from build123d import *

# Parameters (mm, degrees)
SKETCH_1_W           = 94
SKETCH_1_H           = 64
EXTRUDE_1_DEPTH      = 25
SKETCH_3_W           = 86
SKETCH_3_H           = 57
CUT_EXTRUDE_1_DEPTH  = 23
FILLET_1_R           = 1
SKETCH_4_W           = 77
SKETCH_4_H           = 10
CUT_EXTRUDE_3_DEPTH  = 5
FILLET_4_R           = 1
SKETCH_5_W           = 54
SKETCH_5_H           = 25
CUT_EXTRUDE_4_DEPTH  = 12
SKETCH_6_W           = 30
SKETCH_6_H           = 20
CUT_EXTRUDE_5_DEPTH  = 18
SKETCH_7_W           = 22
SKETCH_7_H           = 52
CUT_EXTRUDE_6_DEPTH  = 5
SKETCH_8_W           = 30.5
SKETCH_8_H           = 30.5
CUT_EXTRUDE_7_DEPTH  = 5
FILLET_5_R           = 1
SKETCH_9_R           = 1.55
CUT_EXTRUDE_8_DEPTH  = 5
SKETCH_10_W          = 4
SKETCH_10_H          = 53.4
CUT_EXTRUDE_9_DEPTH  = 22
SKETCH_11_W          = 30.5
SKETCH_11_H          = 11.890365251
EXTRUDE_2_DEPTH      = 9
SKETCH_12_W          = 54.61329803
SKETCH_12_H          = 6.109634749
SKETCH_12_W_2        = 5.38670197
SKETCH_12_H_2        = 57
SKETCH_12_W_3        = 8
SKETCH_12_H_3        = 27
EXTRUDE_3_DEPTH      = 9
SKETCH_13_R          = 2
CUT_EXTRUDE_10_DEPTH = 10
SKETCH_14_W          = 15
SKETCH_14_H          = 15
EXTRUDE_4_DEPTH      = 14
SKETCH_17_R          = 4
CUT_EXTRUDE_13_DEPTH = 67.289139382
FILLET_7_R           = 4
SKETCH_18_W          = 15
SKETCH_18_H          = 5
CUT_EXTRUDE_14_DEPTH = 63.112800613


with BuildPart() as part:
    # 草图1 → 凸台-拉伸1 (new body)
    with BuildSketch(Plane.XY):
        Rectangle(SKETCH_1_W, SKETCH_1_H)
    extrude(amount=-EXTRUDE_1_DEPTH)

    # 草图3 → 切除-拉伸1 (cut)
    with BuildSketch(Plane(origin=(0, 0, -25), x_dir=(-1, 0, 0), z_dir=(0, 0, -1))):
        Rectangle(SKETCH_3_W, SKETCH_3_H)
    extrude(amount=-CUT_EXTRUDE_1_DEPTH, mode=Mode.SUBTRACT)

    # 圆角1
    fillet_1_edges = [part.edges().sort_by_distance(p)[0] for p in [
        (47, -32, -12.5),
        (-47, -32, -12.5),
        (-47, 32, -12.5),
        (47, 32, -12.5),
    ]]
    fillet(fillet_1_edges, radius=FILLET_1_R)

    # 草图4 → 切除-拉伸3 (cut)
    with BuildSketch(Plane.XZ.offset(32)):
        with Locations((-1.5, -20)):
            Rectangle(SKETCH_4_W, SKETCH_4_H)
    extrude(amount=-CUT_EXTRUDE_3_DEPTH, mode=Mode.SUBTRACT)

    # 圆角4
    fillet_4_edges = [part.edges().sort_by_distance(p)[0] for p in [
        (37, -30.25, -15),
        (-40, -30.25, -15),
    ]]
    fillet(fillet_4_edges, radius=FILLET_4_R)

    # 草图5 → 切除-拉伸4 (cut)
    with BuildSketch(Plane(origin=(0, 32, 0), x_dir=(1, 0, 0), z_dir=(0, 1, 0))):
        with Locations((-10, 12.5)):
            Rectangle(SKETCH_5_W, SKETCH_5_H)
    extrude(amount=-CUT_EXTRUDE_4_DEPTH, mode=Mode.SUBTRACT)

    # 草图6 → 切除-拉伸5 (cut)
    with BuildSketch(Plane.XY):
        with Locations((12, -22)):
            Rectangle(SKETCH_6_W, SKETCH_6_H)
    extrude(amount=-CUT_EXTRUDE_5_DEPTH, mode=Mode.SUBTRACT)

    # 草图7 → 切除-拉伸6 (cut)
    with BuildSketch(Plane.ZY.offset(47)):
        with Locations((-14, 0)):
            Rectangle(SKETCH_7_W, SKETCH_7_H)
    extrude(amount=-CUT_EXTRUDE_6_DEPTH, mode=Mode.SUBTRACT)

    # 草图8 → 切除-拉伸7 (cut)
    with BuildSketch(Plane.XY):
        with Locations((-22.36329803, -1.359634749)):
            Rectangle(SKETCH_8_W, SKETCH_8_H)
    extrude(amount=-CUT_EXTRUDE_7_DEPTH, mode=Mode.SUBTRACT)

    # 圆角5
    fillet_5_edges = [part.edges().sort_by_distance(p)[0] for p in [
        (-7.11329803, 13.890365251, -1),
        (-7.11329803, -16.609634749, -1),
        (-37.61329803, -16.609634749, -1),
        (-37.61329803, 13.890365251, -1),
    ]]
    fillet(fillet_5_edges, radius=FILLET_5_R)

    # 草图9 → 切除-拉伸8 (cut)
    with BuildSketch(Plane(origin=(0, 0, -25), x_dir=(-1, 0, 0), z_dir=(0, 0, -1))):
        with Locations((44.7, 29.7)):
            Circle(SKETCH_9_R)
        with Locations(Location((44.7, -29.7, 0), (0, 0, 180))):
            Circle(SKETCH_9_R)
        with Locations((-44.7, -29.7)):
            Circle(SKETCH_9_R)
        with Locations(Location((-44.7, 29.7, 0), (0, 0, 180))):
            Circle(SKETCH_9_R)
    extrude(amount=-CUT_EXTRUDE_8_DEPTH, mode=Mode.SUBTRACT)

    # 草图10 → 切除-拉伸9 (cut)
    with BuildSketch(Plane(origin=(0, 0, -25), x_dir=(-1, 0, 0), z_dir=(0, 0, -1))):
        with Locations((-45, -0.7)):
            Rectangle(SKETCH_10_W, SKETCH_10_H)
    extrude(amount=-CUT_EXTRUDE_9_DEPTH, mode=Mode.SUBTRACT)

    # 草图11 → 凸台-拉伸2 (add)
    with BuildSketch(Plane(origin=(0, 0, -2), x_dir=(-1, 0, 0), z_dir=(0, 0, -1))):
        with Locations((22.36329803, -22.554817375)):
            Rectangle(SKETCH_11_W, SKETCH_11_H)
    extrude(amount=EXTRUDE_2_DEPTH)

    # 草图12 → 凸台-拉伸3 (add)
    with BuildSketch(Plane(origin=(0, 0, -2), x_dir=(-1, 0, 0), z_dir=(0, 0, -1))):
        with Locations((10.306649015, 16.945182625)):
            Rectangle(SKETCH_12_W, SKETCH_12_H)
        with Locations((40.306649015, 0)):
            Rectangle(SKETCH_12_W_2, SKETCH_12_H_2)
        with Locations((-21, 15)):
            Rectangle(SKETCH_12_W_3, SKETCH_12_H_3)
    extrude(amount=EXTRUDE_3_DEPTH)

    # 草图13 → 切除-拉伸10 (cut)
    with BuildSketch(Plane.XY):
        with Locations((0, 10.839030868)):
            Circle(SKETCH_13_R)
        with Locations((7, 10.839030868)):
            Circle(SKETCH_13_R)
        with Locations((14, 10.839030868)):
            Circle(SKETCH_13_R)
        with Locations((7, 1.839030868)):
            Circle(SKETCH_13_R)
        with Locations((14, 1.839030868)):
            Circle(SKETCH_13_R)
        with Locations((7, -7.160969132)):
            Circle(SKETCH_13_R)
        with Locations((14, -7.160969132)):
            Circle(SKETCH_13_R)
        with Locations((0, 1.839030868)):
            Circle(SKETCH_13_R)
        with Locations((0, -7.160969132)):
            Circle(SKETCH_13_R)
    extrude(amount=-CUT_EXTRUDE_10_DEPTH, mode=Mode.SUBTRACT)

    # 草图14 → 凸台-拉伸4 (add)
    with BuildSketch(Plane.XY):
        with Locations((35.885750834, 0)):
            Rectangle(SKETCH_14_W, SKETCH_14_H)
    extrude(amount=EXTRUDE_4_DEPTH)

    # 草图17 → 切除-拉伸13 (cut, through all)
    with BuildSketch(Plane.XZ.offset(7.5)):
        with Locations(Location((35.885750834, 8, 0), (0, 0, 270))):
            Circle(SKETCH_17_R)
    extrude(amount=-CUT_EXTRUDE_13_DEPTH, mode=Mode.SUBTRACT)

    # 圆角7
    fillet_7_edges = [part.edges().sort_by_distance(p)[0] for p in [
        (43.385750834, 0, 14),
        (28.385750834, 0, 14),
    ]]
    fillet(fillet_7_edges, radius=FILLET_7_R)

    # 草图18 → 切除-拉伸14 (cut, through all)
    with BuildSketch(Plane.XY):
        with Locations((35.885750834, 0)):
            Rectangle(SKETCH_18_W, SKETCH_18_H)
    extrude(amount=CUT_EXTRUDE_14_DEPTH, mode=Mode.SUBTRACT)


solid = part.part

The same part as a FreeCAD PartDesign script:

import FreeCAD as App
import Part
import Sketcher
Q = App.Units.Quantity


def edges_at(feature, points):
    """Names of the edges that pass closest to the given points."""
    edges = feature.Shape.Edges
    near = lambda p: min(range(len(edges)), key=lambda i: edges[i].distToShape(Part.Vertex(*p))[0])
    return sorted({f"Edge{near(p) + 1}" for p in points})


def add_polygon(sketch, points):
    """Adds a closed chain of lines whose ends are joined by coincident constraints."""
    first, n = sketch.GeometryCount, len(points)
    for a, b in zip(points, points[1:] + points[:1]):
        sketch.addGeometry(Part.LineSegment(App.Vector(*a, 0), App.Vector(*b, 0)), False)
    for i in range(n):
        sketch.addConstraint(Sketcher.Constraint("Coincident", first + i, 2, first + (i + 1) % n, 1))

doc = App.newDocument("Part")
params = doc.addObject("Spreadsheet::Sheet", "Params")
for row, (alias, value) in enumerate([
    ("sketch1_width", "94 mm"),
    ("sketch1_height", "64 mm"),
    ("pad1_length", "25 mm"),
    ("sketch2_width", "86 mm"),
    ("sketch2_height", "57 mm"),
    ("pocket1_length", "23 mm"),
    ("fillet_radius", "1 mm"),
    ("sketch3_width", "77 mm"),
    ("sketch3_height", "10 mm"),
    ("pocket2_length", "5 mm"),
    ("fillet2_radius", "1 mm"),
    ("sketch4_width", "54 mm"),
    ("sketch4_height", "25 mm"),
    ("pocket3_length", "12 mm"),
    ("sketch5_width", "30 mm"),
    ("sketch5_height", "20 mm"),
    ("pocket4_length", "18 mm"),
    ("sketch6_width", "52 mm"),
    ("sketch6_height", "22 mm"),
    ("pocket5_length", "5 mm"),
    ("sketch7_width", "30.5 mm"),
    ("pocket6_length", "5 mm"),
    ("fillet3_radius", "1 mm"),
    ("sketch8_diameter", "3.1 mm"),
    ("pocket7_length", "5 mm"),
    ("sketch9_width", "4 mm"),
    ("sketch9_height", "53.4 mm"),
    ("pocket8_length", "22 mm"),
    ("sketch10_width", "30.5 mm"),
    ("pad2_length", "9 mm"),
    ("sketch11_width", "8 mm"),
    ("sketch11_height", "57 mm"),
    ("sketch11_height2", "27 mm"),
    ("sketch11_height3", "8.5 mm"),
    ("pad3_length", "9 mm"),
    ("sketch12_diameter", "4 mm"),
    ("pocket9_length", "10 mm"),
    ("sketch13_width", "15 mm"),
    ("pad4_length", "14 mm"),
    ("sketch14_diameter", "8 mm"),
    ("fillet4_radius", "4 mm"),
    ("sketch15_width", "15 mm"),
    ("sketch15_height", "5 mm"),
], start=1):
    params.set(f"A{row}", alias)
    params.set(f"B{row}", "=" + value)
    params.setAlias(f"B{row}", alias)

body = doc.addObject("PartDesign::Body", "Body")

# Sketch on XY plane
sketch1 = doc.addObject("Sketcher::SketchObject", "Sketch")
body.addObject(sketch1)
sketch1.AttachmentSupport = (doc.XY_Plane, [""])
sketch1.MapMode = "FlatFace"
add_polygon(sketch1, [(-47, 32), (-47, -32), (47, -32), (47, 32)])  # lines 0-3
sketch1.addConstraint(Sketcher.Constraint("Vertical", 0))
sketch1.addConstraint(Sketcher.Constraint("Horizontal", 1))
sketch1.addConstraint(Sketcher.Constraint("Vertical", 2))
sketch1.addConstraint(Sketcher.Constraint("Horizontal", 3))
sketch1.addConstraint(Sketcher.Constraint("Symmetric", 0, 2, 2, 2, -1, 1))
sketch1.addConstraint(Sketcher.Constraint("DistanceX", 1, 1, 1, 2, Q("94 mm")))
sketch1.addConstraint(Sketcher.Constraint("DistanceY", 0, 2, 0, 1, Q("64 mm")))
sketch1.setExpression("Constraints[9]", "Params.sketch1_width")
sketch1.setExpression("Constraints[10]", "Params.sketch1_height")
pad1 = doc.addObject("PartDesign::Pad", "Pad")
body.addObject(pad1)
pad1.Profile = sketch1
pad1.setExpression("Length", "Params.pad1_length")
pad1.Reversed = True

# Sketch on XY plane
sketch2 = doc.addObject("Sketcher::SketchObject", "Sketch001")
body.addObject(sketch2)
sketch2.AttachmentSupport = (doc.XY_Plane, [""])
sketch2.MapMode = "FlatFace"
sketch2.AttachmentOffset = App.Placement(App.Vector(0, 0, -25), App.Rotation())
add_polygon(sketch2, [(43, 28), (43, -28), (-43, -28), (-43, 28)])  # lines 0-3
sketch2.addConstraint(Sketcher.Constraint("Vertical", 0))
sketch2.addConstraint(Sketcher.Constraint("Horizontal", 1))
sketch2.addConstraint(Sketcher.Constraint("Vertical", 2))
sketch2.addConstraint(Sketcher.Constraint("Horizontal", 3))
sketch2.addConstraint(Sketcher.Constraint("Symmetric", 0, 2, 2, 2, -1, 1))
sketch2.addConstraint(Sketcher.Constraint("DistanceX", 1, 2, 1, 1, Q("86 mm")))
sketch2.addConstraint(Sketcher.Constraint("DistanceY", 0, 2, 0, 1, Q("57 mm")))
sketch2.setExpression("Constraints[9]", "Params.sketch2_width")
sketch2.setExpression("Constraints[10]", "Params.sketch2_height")
pocket1 = doc.addObject("PartDesign::Pocket", "Pocket")
body.addObject(pocket1)
pocket1.Profile = sketch2
pocket1.setExpression("Length", "Params.pocket1_length")
pocket1.Reversed = True
doc.recompute()

fillet = doc.addObject("PartDesign::Fillet", "Fillet")
body.addObject(fillet)
fillet.Base = (pocket1, edges_at(pocket1, [
    (47, -32, -12.5),
    (-47, -32, -12.5),
    (-47, 32, -12.5),
    (47, 32, -12.5),
]))
fillet.setExpression("Radius", "Params.fillet_radius")

# Sketch on XZ plane
sketch3 = doc.addObject("Sketcher::SketchObject", "Sketch002")
body.addObject(sketch3)
sketch3.AttachmentSupport = (doc.XZ_Plane, [""])
sketch3.MapMode = "FlatFace"
sketch3.AttachmentOffset = App.Placement(App.Vector(0, 0, 32), App.Rotation())
add_polygon(sketch3, [(-40, -15), (-40, -25), (37, -25), (37, -15)])  # lines 0-3
sketch3.addConstraint(Sketcher.Constraint("Vertical", 0))
sketch3.addConstraint(Sketcher.Constraint("Horizontal", 1))
sketch3.addConstraint(Sketcher.Constraint("Vertical", 2))
sketch3.addConstraint(Sketcher.Constraint("Horizontal", 3))
sketch3.addConstraint(Sketcher.Constraint("DistanceX", 1, 1, 1, 2, Q("77 mm")))
sketch3.addConstraint(Sketcher.Constraint("DistanceY", 0, 2, 0, 1, Q("10 mm")))
sketch3.addConstraint(Sketcher.Constraint("DistanceX", 0, 2, -1, 1, Q("40 mm")))
sketch3.addConstraint(Sketcher.Constraint("DistanceY", 0, 2, -1, 1, Q("25 mm")))
sketch3.setExpression("Constraints[8]", "Params.sketch3_width")
sketch3.setExpression("Constraints[9]", "Params.sketch3_height")
pocket2 = doc.addObject("PartDesign::Pocket", "Pocket001")
body.addObject(pocket2)
pocket2.Profile = sketch3
pocket2.setExpression("Length", "Params.pocket2_length")
doc.recompute()

fillet2 = doc.addObject("PartDesign::Fillet", "Fillet001")
body.addObject(fillet2)
fillet2.Base = (pocket2, edges_at(pocket2, [(37, -30.25, -15), (-40, -30.25, -15)]))
fillet2.setExpression("Radius", "Params.fillet2_radius")

# Sketch on XZ plane
sketch4 = doc.addObject("Sketcher::SketchObject", "Sketch003")
body.addObject(sketch4)
sketch4.AttachmentSupport = (doc.XZ_Plane, [""])
sketch4.MapMode = "FlatFace"
sketch4.AttachmentOffset = App.Placement(App.Vector(0, 0, -32), App.Rotation())
add_polygon(sketch4, [(-37, -25), (-37, 0), (17, 0), (17, -25)])  # lines 0-3
sketch4.addConstraint(Sketcher.Constraint("Vertical", 0))
sketch4.addConstraint(Sketcher.Constraint("Horizontal", 1))
sketch4.addConstraint(Sketcher.Constraint("Vertical", 2))
sketch4.addConstraint(Sketcher.Constraint("Horizontal", 3))
sketch4.addConstraint(Sketcher.Constraint("PointOnObject", 0, 2, -1))
sketch4.addConstraint(Sketcher.Constraint("DistanceX", 1, 1, 1, 2, Q("54 mm")))
sketch4.addConstraint(Sketcher.Constraint("DistanceY", 0, 1, 0, 2, Q("25 mm")))
sketch4.addConstraint(Sketcher.Constraint("DistanceX", 0, 2, -1, 1, Q("37 mm")))
sketch4.setExpression("Constraints[9]", "Params.sketch4_width")
sketch4.setExpression("Constraints[10]", "Params.sketch4_height")
pocket3 = doc.addObject("PartDesign::Pocket", "Pocket002")
body.addObject(pocket3)
pocket3.Profile = sketch4
pocket3.setExpression("Length", "Params.pocket3_length")
pocket3.Reversed = True

# Sketch on XY plane
sketch5 = doc.addObject("Sketcher::SketchObject", "Sketch004")
body.addObject(sketch5)
sketch5.AttachmentSupport = (doc.XY_Plane, [""])
sketch5.MapMode = "FlatFace"
add_polygon(sketch5, [(-3, -12), (-3, -32), (27, -32), (27, -12)])  # lines 0-3
sketch5.addConstraint(Sketcher.Constraint("Vertical", 0))
sketch5.addConstraint(Sketcher.Constraint("Horizontal", 1))
sketch5.addConstraint(Sketcher.Constraint("Vertical", 2))
sketch5.addConstraint(Sketcher.Constraint("Horizontal", 3))
sketch5.addConstraint(Sketcher.Constraint("DistanceX", 1, 1, 1, 2, Q("30 mm")))
sketch5.addConstraint(Sketcher.Constraint("DistanceY", 0, 2, 0, 1, Q("20 mm")))
sketch5.addConstraint(Sketcher.Constraint("DistanceX", 0, 2, -1, 1, Q("3 mm")))
sketch5.addConstraint(Sketcher.Constraint("DistanceY", 0, 2, -1, 1, Q("32 mm")))
sketch5.setExpression("Constraints[8]", "Params.sketch5_width")
sketch5.setExpression("Constraints[9]", "Params.sketch5_height")
pocket4 = doc.addObject("PartDesign::Pocket", "Pocket003")
body.addObject(pocket4)
pocket4.Profile = sketch5
pocket4.setExpression("Length", "Params.pocket4_length")

# Sketch on YZ plane
sketch6 = doc.addObject("Sketcher::SketchObject", "Sketch005")
body.addObject(sketch6)
sketch6.AttachmentSupport = (doc.YZ_Plane, [""])
sketch6.MapMode = "FlatFace"
sketch6.AttachmentOffset = App.Placement(App.Vector(0, 0, -47), App.Rotation())
add_polygon(sketch6, [(26, -25), (-26, -25), (-26, -3), (26, -3)])  # lines 0-3
sketch6.addConstraint(Sketcher.Constraint("Horizontal", 0))
sketch6.addConstraint(Sketcher.Constraint("Vertical", 1))
sketch6.addConstraint(Sketcher.Constraint("Horizontal", 2))
sketch6.addConstraint(Sketcher.Constraint("Vertical", 3))
sketch6.addConstraint(Sketcher.Constraint("DistanceX", 0, 2, 0, 1, Q("52 mm")))
sketch6.addConstraint(Sketcher.Constraint("DistanceY", 1, 1, 1, 2, Q("22 mm")))
sketch6.addConstraint(Sketcher.Constraint("DistanceX", 0, 2, -1, 1, Q("26 mm")))
sketch6.addConstraint(Sketcher.Constraint("DistanceY", 0, 2, -1, 1, Q("25 mm")))
sketch6.setExpression("Constraints[8]", "Params.sketch6_width")
sketch6.setExpression("Constraints[9]", "Params.sketch6_height")
pocket5 = doc.addObject("PartDesign::Pocket", "Pocket004")
body.addObject(pocket5)
pocket5.Profile = sketch6
pocket5.setExpression("Length", "Params.pocket5_length")
pocket5.Reversed = True

# Sketch on XY plane
sketch7 = doc.addObject("Sketcher::SketchObject", "Sketch006")
body.addObject(sketch7)
sketch7.AttachmentSupport = (doc.XY_Plane, [""])
sketch7.MapMode = "FlatFace"
add_polygon(sketch7, [(-38, 14), (-38, -17), (-7, -17), (-7, 14)])  # lines 0-3
sketch7.addConstraint(Sketcher.Constraint("Vertical", 0))
sketch7.addConstraint(Sketcher.Constraint("Horizontal", 1))
sketch7.addConstraint(Sketcher.Constraint("Vertical", 2))
sketch7.addConstraint(Sketcher.Constraint("Horizontal", 3))
sketch7.addConstraint(Sketcher.Constraint("Equal", 3, 0))
sketch7.addConstraint(Sketcher.Constraint("DistanceX", 1, 1, 1, 2, Q("30.5 mm")))
sketch7.addConstraint(Sketcher.Constraint("DistanceX", 0, 2, -1, 1, Q("37.613298 mm")))
sketch7.addConstraint(Sketcher.Constraint("DistanceY", 0, 2, -1, 1, Q("16.609635 mm")))
sketch7.setExpression("Constraints[9]", "Params.sketch7_width")
pocket6 = doc.addObject("PartDesign::Pocket", "Pocket005")
body.addObject(pocket6)
pocket6.Profile = sketch7
pocket6.setExpression("Length", "Params.pocket6_length")
doc.recompute()

fillet3 = doc.addObject("PartDesign::Fillet", "Fillet002")
body.addObject(fillet3)
fillet3.Base = (pocket6, edges_at(pocket6, [
    (-7.113, 13.89, -1),
    (-7.113, -16.61, -1),
    (-37.613, -16.61, -1),
    (-37.613, 13.89, -1),
]))
fillet3.setExpression("Radius", "Params.fillet3_radius")

# Sketch on XY plane
sketch8 = doc.addObject("Sketcher::SketchObject", "Sketch007")
body.addObject(sketch8)
sketch8.AttachmentSupport = (doc.XY_Plane, [""])
sketch8.MapMode = "FlatFace"
sketch8.AttachmentOffset = App.Placement(App.Vector(0, 0, -25), App.Rotation())
sketch8.addGeometry(Part.Circle(App.Vector(-44.7, 29.7, 0), App.Vector(0, 0, 1), 1.6), False)
sketch8.addGeometry(Part.Circle(App.Vector(-44.7, -29.7, 0), App.Vector(0, 0, 1), 1.6), False)
sketch8.addGeometry(Part.Circle(App.Vector(44.7, -29.7, 0), App.Vector(0, 0, 1), 1.6), False)
sketch8.addGeometry(Part.Circle(App.Vector(44.7, 29.7, 0), App.Vector(0, 0, 1), 1.6), False)
sketch8.addConstraint(Sketcher.Constraint("Equal", 0, 1))
sketch8.addConstraint(Sketcher.Constraint("Equal", 1, 2))
sketch8.addConstraint(Sketcher.Constraint("Equal", 2, 3))
sketch8.addConstraint(Sketcher.Constraint("Symmetric", 0, 3, 2, 3, -1, 1))
sketch8.addConstraint(Sketcher.Constraint("Symmetric", 1, 3, 3, 3, -1, 1))
sketch8.addConstraint(Sketcher.Constraint("Symmetric", 1, 3, 2, 3, -2))
sketch8.addConstraint(Sketcher.Constraint("Diameter", 0, Q("3.1 mm")))
sketch8.addConstraint(Sketcher.Constraint("DistanceX", 0, 3, -1, 1, Q("44.7 mm")))
sketch8.addConstraint(Sketcher.Constraint("DistanceY", -1, 1, 0, 3, Q("29.7 mm")))
sketch8.setExpression("Constraints[6]", "Params.sketch8_diameter")
pocket7 = doc.addObject("PartDesign::Pocket", "Pocket006")
body.addObject(pocket7)
pocket7.Profile = sketch8
pocket7.setExpression("Length", "Params.pocket7_length")
pocket7.Reversed = True

# Sketch on XY plane
sketch9 = doc.addObject("Sketcher::SketchObject", "Sketch008")
body.addObject(sketch9)
sketch9.AttachmentSupport = (doc.XY_Plane, [""])
sketch9.MapMode = "FlatFace"
sketch9.AttachmentOffset = App.Placement(App.Vector(0, 0, -25), App.Rotation())
add_polygon(sketch9, [(47, 26), (47, -27.4), (43, -27.4), (43, 26)])  # lines 0-3
sketch9.addConstraint(Sketcher.Constraint("Vertical", 0))
sketch9.addConstraint(Sketcher.Constraint("Horizontal", 1))
sketch9.addConstraint(Sketcher.Constraint("Vertical", 2))
sketch9.addConstraint(Sketcher.Constraint("Horizontal", 3))
sketch9.addConstraint(Sketcher.Constraint("DistanceX", 1, 2, 1, 1, Q("4 mm")))
sketch9.addConstraint(Sketcher.Constraint("DistanceY", 0, 2, 0, 1, Q("53.4 mm")))
sketch9.addConstraint(Sketcher.Constraint("DistanceX", -1, 1, 0, 2, Q("47 mm")))
sketch9.addConstraint(Sketcher.Constraint("DistanceY", -1, 1, 2, 2, Q("26 mm")))
sketch9.setExpression("Constraints[8]", "Params.sketch9_width")
sketch9.setExpression("Constraints[9]", "Params.sketch9_height")
pocket8 = doc.addObject("PartDesign::Pocket", "Pocket007")
body.addObject(pocket8)
pocket8.Profile = sketch9
pocket8.setExpression("Length", "Params.pocket8_length")
pocket8.Reversed = True

# Sketch on XY plane
sketch10 = doc.addObject("Sketcher::SketchObject", "Sketch009")
body.addObject(sketch10)
sketch10.AttachmentSupport = (doc.XY_Plane, [""])
sketch10.MapMode = "FlatFace"
sketch10.AttachmentOffset = App.Placement(App.Vector(0, 0, -2), App.Rotation())
add_polygon(sketch10, [(-7, -17), (-7, -28), (-38, -28), (-38, -17)])  # lines 0-3
sketch10.addConstraint(Sketcher.Constraint("Vertical", 0))
sketch10.addConstraint(Sketcher.Constraint("Horizontal", 1))
sketch10.addConstraint(Sketcher.Constraint("Vertical", 2))
sketch10.addConstraint(Sketcher.Constraint("Horizontal", 3))
sketch10.addConstraint(Sketcher.Constraint("DistanceX", 1, 2, 1, 1, Q("30.5 mm")))
sketch10.addConstraint(Sketcher.Constraint("DistanceY", 0, 2, -1, 1, Q("28.5 mm")))
sketch10.addConstraint(Sketcher.Constraint("DistanceX", 0, 2, -1, 1, Q("7.113298 mm")))
sketch10.addConstraint(Sketcher.Constraint("DistanceY", 0, 2, 0, 1, Q("11.890365 mm")))
sketch10.setExpression("Constraints[8]", "Params.sketch10_width")
pad2 = doc.addObject("PartDesign::Pad", "Pad001")
body.addObject(pad2)
pad2.Profile = sketch10
pad2.setExpression("Length", "Params.pad2_length")
pad2.Reversed = True

# Sketch on XY plane
sketch11 = doc.addObject("Sketcher::SketchObject", "Sketch010")
body.addObject(sketch11)
sketch11.AttachmentSupport = (doc.XY_Plane, [""])
sketch11.MapMode = "FlatFace"
sketch11.AttachmentOffset = App.Placement(App.Vector(0, 0, -2), App.Rotation())
add_polygon(sketch11, [(17, 14), (-38, 14), (-38, -28), (-43, -28), (-43, 28), (-38, 28), (-38, 20), (17, 20), (17, 28), (25, 28), (25, 2), (17, 2)])  # lines 0-11
sketch11.addConstraint(Sketcher.Constraint("Horizontal", 0))
sketch11.addConstraint(Sketcher.Constraint("Vertical", 1))
sketch11.addConstraint(Sketcher.Constraint("Horizontal", 2))
sketch11.addConstraint(Sketcher.Constraint("Vertical", 3))
sketch11.addConstraint(Sketcher.Constraint("Horizontal", 4))
sketch11.addConstraint(Sketcher.Constraint("Vertical", 5))
sketch11.addConstraint(Sketcher.Constraint("Horizontal", 6))
sketch11.addConstraint(Sketcher.Constraint("Vertical", 7))
sketch11.addConstraint(Sketcher.Constraint("Horizontal", 8))
sketch11.addConstraint(Sketcher.Constraint("Vertical", 9))
sketch11.addConstraint(Sketcher.Constraint("Horizontal", 10))
sketch11.addConstraint(Sketcher.Constraint("Vertical", 11))
sketch11.addConstraint(Sketcher.Constraint("Symmetric", 1, 2, 4, 2, -1))
sketch11.addConstraint(Sketcher.Constraint("Horizontal", 4, 2, 7, 2))
sketch11.addConstraint(Sketcher.Constraint("Vertical", 7, 2, 10, 2))
sketch11.addConstraint(Sketcher.Constraint("DistanceX", 8, 1, 8, 2, Q("8 mm")))
sketch11.addConstraint(Sketcher.Constraint("DistanceY", 3, 1, 3, 2, Q("57 mm")))
sketch11.addConstraint(Sketcher.Constraint("DistanceY", 9, 2, 9, 1, Q("27 mm")))
sketch11.addConstraint(Sketcher.Constraint("DistanceY", 5, 2, 5, 1, Q("8.5 mm")))
sketch11.addConstraint(Sketcher.Constraint("DistanceX", 2, 2, -1, 1, Q("43 mm")))
sketch11.addConstraint(Sketcher.Constraint("DistanceX", -1, 1, 6, 2, Q("17 mm")))
sketch11.addConstraint(Sketcher.Constraint("DistanceX", 0, 2, 0, 1, Q("54.613298 mm")))
sketch11.addConstraint(Sketcher.Constraint("DistanceY", 1, 2, 1, 1, Q("42.390365 mm")))
sketch11.setExpression("Constraints[27]", "Params.sketch11_width")
sketch11.setExpression("Constraints[28]", "Params.sketch11_height")
sketch11.setExpression("Constraints[29]", "Params.sketch11_height2")
sketch11.setExpression("Constraints[30]", "Params.sketch11_height3")
pad3 = doc.addObject("PartDesign::Pad", "Pad002")
body.addObject(pad3)
pad3.Profile = sketch11
pad3.setExpression("Length", "Params.pad3_length")
pad3.Reversed = True

# Sketch on XY plane
sketch12 = doc.addObject("Sketcher::SketchObject", "Sketch011")
body.addObject(sketch12)
sketch12.AttachmentSupport = (doc.XY_Plane, [""])
sketch12.MapMode = "FlatFace"
sketch12.addGeometry(Part.Circle(App.Vector(0, 10.8, 0), App.Vector(0, 0, 1), 2), False)
sketch12.addGeometry(Part.Circle(App.Vector(7, 10.8, 0), App.Vector(0, 0, 1), 2), False)
sketch12.addGeometry(Part.Circle(App.Vector(14, 10.8, 0), App.Vector(0, 0, 1), 2), False)
sketch12.addGeometry(Part.Circle(App.Vector(7, 1.8, 0), App.Vector(0, 0, 1), 2), False)
sketch12.addGeometry(Part.Circle(App.Vector(14, 1.8, 0), App.Vector(0, 0, 1), 2), False)
sketch12.addGeometry(Part.Circle(App.Vector(7, -7.2, 0), App.Vector(0, 0, 1), 2), False)
sketch12.addGeometry(Part.Circle(App.Vector(14, -7.2, 0), App.Vector(0, 0, 1), 2), False)
sketch12.addGeometry(Part.Circle(App.Vector(0, 1.8, 0), App.Vector(0, 0, 1), 2), False)
sketch12.addGeometry(Part.Circle(App.Vector(0, -7.2, 0), App.Vector(0, 0, 1), 2), False)
sketch12.addConstraint(Sketcher.Constraint("Equal", 0, 1))
sketch12.addConstraint(Sketcher.Constraint("Equal", 1, 2))
sketch12.addConstraint(Sketcher.Constraint("Equal", 2, 3))
sketch12.addConstraint(Sketcher.Constraint("Equal", 3, 4))
sketch12.addConstraint(Sketcher.Constraint("Equal", 4, 5))
sketch12.addConstraint(Sketcher.Constraint("Equal", 5, 6))
sketch12.addConstraint(Sketcher.Constraint("Equal", 6, 7))
sketch12.addConstraint(Sketcher.Constraint("Equal", 7, 8))
sketch12.addConstraint(Sketcher.Constraint("PointOnObject", 0, 3, -2))
sketch12.addConstraint(Sketcher.Constraint("PointOnObject", 7, 3, -2))
sketch12.addConstraint(Sketcher.Constraint("PointOnObject", 8, 3, -2))
sketch12.addConstraint(Sketcher.Constraint("Horizontal", 0, 3, 1, 3))
sketch12.addConstraint(Sketcher.Constraint("Horizontal", 1, 3, 2, 3))
sketch12.addConstraint(Sketcher.Constraint("Horizontal", 3, 3, 4, 3))
sketch12.addConstraint(Sketcher.Constraint("Horizontal", 5, 3, 6, 3))
sketch12.addConstraint(Sketcher.Constraint("Horizontal", 4, 3, 7, 3))
sketch12.addConstraint(Sketcher.Constraint("Horizontal", 6, 3, 8, 3))
sketch12.addConstraint(Sketcher.Constraint("Vertical", 1, 3, 3, 3))
sketch12.addConstraint(Sketcher.Constraint("Vertical", 2, 3, 4, 3))
sketch12.addConstraint(Sketcher.Constraint("Vertical", 3, 3, 5, 3))
sketch12.addConstraint(Sketcher.Constraint("Vertical", 4, 3, 6, 3))
sketch12.addConstraint(Sketcher.Constraint("Diameter", 0, Q("4 mm")))
sketch12.addConstraint(Sketcher.Constraint("DistanceX", -1, 1, 1, 3, Q("7 mm")))
sketch12.addConstraint(Sketcher.Constraint("DistanceX", -1, 1, 2, 3, Q("14 mm")))
sketch12.addConstraint(Sketcher.Constraint("DistanceY", 3, 3, 1, 3, Q("9 mm")))
sketch12.addConstraint(Sketcher.Constraint("DistanceY", 5, 3, 3, 3, Q("9 mm")))
sketch12.addConstraint(Sketcher.Constraint("DistanceY", -1, 1, 0, 3, Q("10.839031 mm")))
sketch12.setExpression("Constraints[21]", "Params.sketch12_diameter")
pocket9 = doc.addObject("PartDesign::Pocket", "Pocket008")
body.addObject(pocket9)
pocket9.Profile = sketch12
pocket9.setExpression("Length", "Params.pocket9_length")

# Sketch on XY plane
sketch13 = doc.addObject("Sketcher::SketchObject", "Sketch012")
body.addObject(sketch13)
sketch13.AttachmentSupport = (doc.XY_Plane, [""])
sketch13.MapMode = "FlatFace"
add_polygon(sketch13, [(28, 8), (28, -8), (43, -8), (43, 8)])  # lines 0-3
sketch13.addConstraint(Sketcher.Constraint("Vertical", 0))
sketch13.addConstraint(Sketcher.Constraint("Horizontal", 1))
sketch13.addConstraint(Sketcher.Constraint("Vertical", 2))
sketch13.addConstraint(Sketcher.Constraint("Horizontal", 3))
sketch13.addConstraint(Sketcher.Constraint("Equal", 3, 0))
sketch13.addConstraint(Sketcher.Constraint("DistanceX", 1, 1, 1, 2, Q("15 mm")))
sketch13.addConstraint(Sketcher.Constraint("DistanceY", 0, 2, -1, 1, Q("7.5 mm")))
sketch13.addConstraint(Sketcher.Constraint("DistanceX", -1, 1, 0, 2, Q("28.385751 mm")))
sketch13.setExpression("Constraints[9]", "Params.sketch13_width")
pad4 = doc.addObject("PartDesign::Pad", "Pad003")
body.addObject(pad4)
pad4.Profile = sketch13
pad4.setExpression("Length", "Params.pad4_length")

# Sketch on XZ plane
sketch14 = doc.addObject("Sketcher::SketchObject", "Sketch013")
body.addObject(sketch14)
sketch14.AttachmentSupport = (doc.XZ_Plane, [""])
sketch14.MapMode = "FlatFace"
sketch14.AttachmentOffset = App.Placement(App.Vector(0, 0, 7.5), App.Rotation())
sketch14.addGeometry(Part.Circle(App.Vector(35.9, 8, 0), App.Vector(0, 0, 1), 4), False)
sketch14.addConstraint(Sketcher.Constraint("Diameter", 0, Q("8 mm")))
sketch14.addConstraint(Sketcher.Constraint("DistanceY", -1, 1, 0, 3, Q("8 mm")))
sketch14.addConstraint(Sketcher.Constraint("DistanceX", -1, 1, 0, 3, Q("35.885751 mm")))
sketch14.setExpression("Constraints[0]", "Params.sketch14_diameter")
pocket10 = doc.addObject("PartDesign::Pocket", "Pocket009")
body.addObject(pocket10)
pocket10.Profile = sketch14
pocket10.Type = "ThroughAll"
doc.recompute()

fillet4 = doc.addObject("PartDesign::Fillet", "Fillet003")
body.addObject(fillet4)
fillet4.Base = (pocket10, edges_at(pocket10, [(43.386, 0, 14), (28.386, 0, 14)]))
fillet4.setExpression("Radius", "Params.fillet4_radius")

# Sketch on XY plane
sketch15 = doc.addObject("Sketcher::SketchObject", "Sketch014")
body.addObject(sketch15)
sketch15.AttachmentSupport = (doc.XY_Plane, [""])
sketch15.MapMode = "FlatFace"
add_polygon(sketch15, [(28, 2), (28, -2), (43, -2), (43, 2)])  # lines 0-3
sketch15.addConstraint(Sketcher.Constraint("Vertical", 0))
sketch15.addConstraint(Sketcher.Constraint("Horizontal", 1))
sketch15.addConstraint(Sketcher.Constraint("Vertical", 2))
sketch15.addConstraint(Sketcher.Constraint("Horizontal", 3))
sketch15.addConstraint(Sketcher.Constraint("DistanceX", 1, 1, 1, 2, Q("15 mm")))
sketch15.addConstraint(Sketcher.Constraint("DistanceY", 0, 2, 0, 1, Q("5 mm")))
sketch15.addConstraint(Sketcher.Constraint("DistanceY", 0, 2, -1, 1, Q("2.5 mm")))
sketch15.addConstraint(Sketcher.Constraint("DistanceX", -1, 1, 0, 2, Q("28.385751 mm")))
sketch15.setExpression("Constraints[8]", "Params.sketch15_width")
sketch15.setExpression("Constraints[9]", "Params.sketch15_height")
pocket11 = doc.addObject("PartDesign::Pocket", "Pocket010")
body.addObject(pocket11)
pocket11.Profile = sketch15
pocket11.Type = "ThroughAll"
pocket11.Reversed = True

doc.recompute()
